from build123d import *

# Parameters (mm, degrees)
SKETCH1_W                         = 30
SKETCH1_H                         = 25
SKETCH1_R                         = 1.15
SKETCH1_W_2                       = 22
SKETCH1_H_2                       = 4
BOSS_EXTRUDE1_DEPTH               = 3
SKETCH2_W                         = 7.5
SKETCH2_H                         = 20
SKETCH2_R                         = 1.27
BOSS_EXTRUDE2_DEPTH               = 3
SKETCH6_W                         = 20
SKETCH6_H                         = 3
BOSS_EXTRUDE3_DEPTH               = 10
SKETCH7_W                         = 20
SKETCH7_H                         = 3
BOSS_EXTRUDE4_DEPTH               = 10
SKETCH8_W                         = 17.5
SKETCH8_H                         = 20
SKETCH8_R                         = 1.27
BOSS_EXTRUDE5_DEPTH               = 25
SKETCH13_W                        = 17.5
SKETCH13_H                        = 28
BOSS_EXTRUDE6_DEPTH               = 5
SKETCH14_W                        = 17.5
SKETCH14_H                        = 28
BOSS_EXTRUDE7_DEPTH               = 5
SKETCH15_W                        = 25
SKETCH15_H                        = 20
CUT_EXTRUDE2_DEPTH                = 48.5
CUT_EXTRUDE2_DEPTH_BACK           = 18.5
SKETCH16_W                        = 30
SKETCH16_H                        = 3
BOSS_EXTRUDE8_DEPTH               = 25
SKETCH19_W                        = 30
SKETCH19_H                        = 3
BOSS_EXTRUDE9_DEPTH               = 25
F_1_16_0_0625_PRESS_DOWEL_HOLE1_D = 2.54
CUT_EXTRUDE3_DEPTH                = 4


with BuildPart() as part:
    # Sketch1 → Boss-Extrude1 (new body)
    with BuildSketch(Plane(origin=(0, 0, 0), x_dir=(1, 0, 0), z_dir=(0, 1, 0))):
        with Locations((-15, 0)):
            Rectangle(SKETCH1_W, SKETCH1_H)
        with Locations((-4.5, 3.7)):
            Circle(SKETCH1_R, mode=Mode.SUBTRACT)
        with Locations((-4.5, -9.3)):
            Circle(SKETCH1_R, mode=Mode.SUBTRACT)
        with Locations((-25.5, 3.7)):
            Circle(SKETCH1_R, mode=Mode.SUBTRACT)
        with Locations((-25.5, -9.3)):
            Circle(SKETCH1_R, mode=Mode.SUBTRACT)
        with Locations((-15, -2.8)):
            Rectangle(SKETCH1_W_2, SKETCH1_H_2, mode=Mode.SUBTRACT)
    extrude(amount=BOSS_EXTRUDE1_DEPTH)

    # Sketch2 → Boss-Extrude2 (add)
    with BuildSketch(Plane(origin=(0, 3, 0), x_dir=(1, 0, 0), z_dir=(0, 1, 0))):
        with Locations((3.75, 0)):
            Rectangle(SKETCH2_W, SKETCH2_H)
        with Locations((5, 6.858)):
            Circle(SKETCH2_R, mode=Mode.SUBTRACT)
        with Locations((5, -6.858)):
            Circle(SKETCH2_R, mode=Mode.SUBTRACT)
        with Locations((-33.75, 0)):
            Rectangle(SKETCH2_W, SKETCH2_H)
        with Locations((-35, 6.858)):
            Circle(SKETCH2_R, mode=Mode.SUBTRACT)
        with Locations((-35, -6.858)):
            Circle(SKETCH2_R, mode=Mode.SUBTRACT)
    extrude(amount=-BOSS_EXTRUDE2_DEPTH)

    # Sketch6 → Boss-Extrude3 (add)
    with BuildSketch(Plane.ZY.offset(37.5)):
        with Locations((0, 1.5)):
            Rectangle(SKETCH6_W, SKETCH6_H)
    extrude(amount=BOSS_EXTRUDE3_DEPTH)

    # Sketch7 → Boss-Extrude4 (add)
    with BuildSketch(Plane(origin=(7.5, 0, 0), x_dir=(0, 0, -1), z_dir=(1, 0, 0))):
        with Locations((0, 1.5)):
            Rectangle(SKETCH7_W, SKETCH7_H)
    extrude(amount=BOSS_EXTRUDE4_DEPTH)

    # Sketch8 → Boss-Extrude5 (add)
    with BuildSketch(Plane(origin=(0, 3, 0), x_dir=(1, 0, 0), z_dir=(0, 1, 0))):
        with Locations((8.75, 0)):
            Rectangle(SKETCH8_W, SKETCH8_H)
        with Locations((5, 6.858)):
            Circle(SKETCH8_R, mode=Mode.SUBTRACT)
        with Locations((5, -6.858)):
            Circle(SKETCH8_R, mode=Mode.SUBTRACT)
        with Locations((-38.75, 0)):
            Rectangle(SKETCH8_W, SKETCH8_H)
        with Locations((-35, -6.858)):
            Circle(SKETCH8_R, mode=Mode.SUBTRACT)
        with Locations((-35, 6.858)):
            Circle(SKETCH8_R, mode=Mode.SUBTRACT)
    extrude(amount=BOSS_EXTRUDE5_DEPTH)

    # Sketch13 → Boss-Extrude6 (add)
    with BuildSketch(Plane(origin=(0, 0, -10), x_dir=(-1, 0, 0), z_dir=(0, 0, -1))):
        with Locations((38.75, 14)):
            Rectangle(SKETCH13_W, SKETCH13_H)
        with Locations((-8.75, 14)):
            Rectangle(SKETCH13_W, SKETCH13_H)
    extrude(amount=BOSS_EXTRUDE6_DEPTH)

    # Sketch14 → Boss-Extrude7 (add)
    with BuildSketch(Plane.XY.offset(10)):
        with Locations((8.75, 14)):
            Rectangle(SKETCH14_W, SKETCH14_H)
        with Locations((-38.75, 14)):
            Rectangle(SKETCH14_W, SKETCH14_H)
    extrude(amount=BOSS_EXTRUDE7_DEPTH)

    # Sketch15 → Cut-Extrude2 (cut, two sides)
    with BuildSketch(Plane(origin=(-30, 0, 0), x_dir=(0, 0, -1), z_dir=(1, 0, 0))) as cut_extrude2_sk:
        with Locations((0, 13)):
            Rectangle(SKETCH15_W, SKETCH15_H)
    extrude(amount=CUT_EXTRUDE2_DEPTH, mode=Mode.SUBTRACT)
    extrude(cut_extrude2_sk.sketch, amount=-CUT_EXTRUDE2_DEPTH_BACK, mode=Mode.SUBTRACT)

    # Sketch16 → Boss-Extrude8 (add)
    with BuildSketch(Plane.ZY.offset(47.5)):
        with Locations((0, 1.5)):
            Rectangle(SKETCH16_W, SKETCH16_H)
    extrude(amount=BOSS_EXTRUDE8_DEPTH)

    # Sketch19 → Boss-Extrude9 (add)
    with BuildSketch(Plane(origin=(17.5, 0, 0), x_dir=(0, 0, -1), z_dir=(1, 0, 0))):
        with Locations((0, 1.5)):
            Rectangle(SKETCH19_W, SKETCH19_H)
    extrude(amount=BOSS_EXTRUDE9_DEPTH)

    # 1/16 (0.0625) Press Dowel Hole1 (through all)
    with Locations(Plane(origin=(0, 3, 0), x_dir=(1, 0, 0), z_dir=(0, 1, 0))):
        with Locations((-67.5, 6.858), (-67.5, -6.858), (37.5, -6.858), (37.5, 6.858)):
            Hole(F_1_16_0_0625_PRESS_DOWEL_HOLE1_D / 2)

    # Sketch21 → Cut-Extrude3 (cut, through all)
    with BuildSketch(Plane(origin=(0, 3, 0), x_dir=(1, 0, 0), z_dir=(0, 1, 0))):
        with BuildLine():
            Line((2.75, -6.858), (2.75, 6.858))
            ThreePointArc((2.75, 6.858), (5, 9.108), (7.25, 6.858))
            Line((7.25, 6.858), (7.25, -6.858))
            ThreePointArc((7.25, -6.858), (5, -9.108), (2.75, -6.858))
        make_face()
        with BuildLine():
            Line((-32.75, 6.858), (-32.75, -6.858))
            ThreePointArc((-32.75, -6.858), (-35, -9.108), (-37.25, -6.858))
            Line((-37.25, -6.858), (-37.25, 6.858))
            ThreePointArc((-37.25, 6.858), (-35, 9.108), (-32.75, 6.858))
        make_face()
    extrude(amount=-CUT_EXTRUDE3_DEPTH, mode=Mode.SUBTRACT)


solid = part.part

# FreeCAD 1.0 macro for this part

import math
import FreeCAD as App
import Part
import Sketcher

V = App.Vector


def add_polygon(sketch, points):
    """Adds a closed chain of lines whose ends are joined by coincident constraints."""
    first, n = sketch.GeometryCount, len(points)
    for a, b in zip(points, points[1:] + points[:1]):
        sketch.addGeometry(Part.LineSegment(App.Vector(*a, 0), App.Vector(*b, 0)), False)
    for i in range(n):
        sketch.addConstraint(Sketcher.Constraint("Coincident", first + i, 2, first + (i + 1) % n, 1))

doc = App.newDocument("Part")
params = doc.addObject("Spreadsheet::Sheet", "Params")
for row, (alias, value) in enumerate([
    ("sketch1_diameter", "2.3 mm"),
    ("sketch1_width", "30 mm"),
    ("sketch1_width2", "22 mm"),
    ("sketch1_height", "25 mm"),
    ("sketch1_height2", "4 mm"),
    ("pad1_length", "3 mm"),
    ("sketch2_diameter", "2.54 mm"),
    ("sketch2_height", "20 mm"),
    ("sketch2_width", "7.5 mm"),
    ("pad2_length", "3 mm"),
    ("sketch3_width", "3 mm"),
    ("sketch3_height", "20 mm"),
    ("pad3_length", "10 mm"),
    ("sketch4_width", "3 mm"),
    ("sketch4_height", "20 mm"),
    ("pad4_length", "10 mm"),
    ("sketch5_diameter", "2.54 mm"),
    ("sketch5_height", "20 mm"),
    ("sketch5_width", "17.5 mm"),
    ("pad5_length", "25 mm"),
    ("sketch6_height", "28 mm"),
    ("sketch6_width", "17.5 mm"),
    ("pad6_length", "5 mm"),
    ("sketch7_height", "28 mm"),
    ("sketch7_width", "17.5 mm"),
    ("pad7_length", "5 mm"),
    ("sketch8_width", "20 mm"),
    ("sketch8_height", "25 mm"),
    ("sketch9_width", "3 mm"),
    ("sketch9_height", "30 mm"),
    ("pad8_length", "25 mm"),
    ("sketch10_width", "3 mm"),
    ("sketch10_height", "30 mm"),
    ("pad9_length", "25 mm"),
    ("sketch11_diameter", "2.54 mm"),
    ("hole_diameter", "2.54 mm"),
    ("sketch12_radius", "2.25 mm"),
], start=1):
    params.set(f"A{row}", alias)
    params.set(f"B{row}", "=" + value)
    params.setAlias(f"B{row}", alias)

body = doc.addObject("PartDesign::Body", "Body")

sketch1 = body.newObject("Sketcher::SketchObject", "Sketch")
sketch1.AttachmentSupport = (doc.getObject("XZ_Plane"), [""])
sketch1.MapMode = "FlatFace"
add_polygon(sketch1, [(-30, -12.5), (-30, 12.5), (0, 12.5), (0, -12.5)])
sketch1.addGeometry(Part.Circle(V(-25.5, 9.3, 0), V(0, 0, 1), 1.15), False)
sketch1.addGeometry(Part.Circle(V(-4.5, 9.3, 0), V(0, 0, 1), 1.15), False)
sketch1.addGeometry(Part.Circle(V(-25.5, -3.7, 0), V(0, 0, 1), 1.15), False)
add_polygon(sketch1, [(-4, 4.8), (-26, 4.8), (-26, 0.8), (-4, 0.8)])
sketch1.addGeometry(Part.Circle(V(-4.5, -3.7, 0), V(0, 0, 1), 1.15), False)
sketch1.addConstraint([
    Sketcher.Constraint("Vertical", 0),
    Sketcher.Constraint("Horizontal", 1),
    Sketcher.Constraint("Vertical", 2),
    Sketcher.Constraint("Horizontal", 3),
    Sketcher.Constraint("Horizontal", 7),
    Sketcher.Constraint("Vertical", 8),
    Sketcher.Constraint("Horizontal", 9),
    Sketcher.Constraint("Vertical", 10),
    Sketcher.Constraint("Equal", 4, 5),
    Sketcher.Constraint("Equal", 5, 6),
    Sketcher.Constraint("Equal", 6, 11),
    Sketcher.Constraint("Symmetric", 1, 2, 2, 2, -1, 1),
    Sketcher.Constraint("Horizontal", 4, 3, 5, 3),
    Sketcher.Constraint("Horizontal", 6, 3, 11, 3),
    Sketcher.Constraint("Vertical", 4, 3, 6, 3),
    Sketcher.Constraint("Vertical", 5, 3, 11, 3),
    Sketcher.Constraint("Diameter", 4, 2.3),
    Sketcher.Constraint("DistanceX", 1, 1, 1, 2, 30.0),
    Sketcher.Constraint("DistanceX", 7, 2, 7, 1, 22.0),
    Sketcher.Constraint("DistanceY", 0, 1, 0, 2, 25.0),
    Sketcher.Constraint("DistanceY", 8, 2, 8, 1, 4.0),
    Sketcher.Constraint("DistanceX", 7, 2, -1, 1, 26.0),
    Sketcher.Constraint("DistanceX", 4, 3, 5, 3, 21.0),
    Sketcher.Constraint("DistanceY", 6, 3, 4, 3, 13.0),
    Sketcher.Constraint("DistanceX", 4, 3, -1, 1, 25.5),
    Sketcher.Constraint("DistanceY", -1, 1, 4, 3, 9.3),
    Sketcher.Constraint("DistanceY", -1, 1, 7, 2, 4.8),
])
sketch1.setExpression("Constraints[24]", "Params.sketch1_diameter")
sketch1.setExpression("Constraints[25]", "Params.sketch1_width")
sketch1.setExpression("Constraints[26]", "Params.sketch1_width2")
sketch1.setExpression("Constraints[27]", "Params.sketch1_height")
sketch1.setExpression("Constraints[28]", "Params.sketch1_height2")
pad1 = body.newObject("PartDesign::Pad", "Pad")
pad1.Profile = sketch1
pad1.setExpression("Length", "Params.pad1_length")
pad1.Reversed = True

sketch2 = body.newObject("Sketcher::SketchObject", "Sketch001")
sketch2.AttachmentSupport = (doc.getObject("XZ_Plane"), [""])
sketch2.MapMode = "FlatFace"
sketch2.AttachmentOffset = App.Placement(V(0, 0, -3), App.Rotation())
add_polygon(sketch2, [(0, -10), (0, 10), (7.5, 10), (7.5, -10)])
sketch2.addGeometry(Part.Circle(V(5, 6.858, 0), V(0, 0, 1), 1.27), False)
sketch2.addGeometry(Part.Circle(V(5, -6.858, 0), V(0, 0, 1), 1.27), False)
add_polygon(sketch2, [(-37.5, -10), (-37.5, 10), (-30, 10), (-30, -10)])
sketch2.addGeometry(Part.Circle(V(-35, 6.858, 0), V(0, 0, 1), 1.27), False)
sketch2.addGeometry(Part.Circle(V(-35, -6.858, 0), V(0, 0, 1), 1.27), False)
sketch2.addConstraint([
    Sketcher.Constraint("Vertical", 0),
    Sketcher.Constraint("Horizontal", 1),
    Sketcher.Constraint("Vertical", 2),
    Sketcher.Constraint("Horizontal", 3),
    Sketcher.Constraint("Vertical", 6),
    Sketcher.Constraint("Horizontal", 7),
    Sketcher.Constraint("Vertical", 8),
    Sketcher.Constraint("Horizontal", 9),
    Sketcher.Constraint("Equal", 4, 5),
    Sketcher.Constraint("Equal", 5, 10),
    Sketcher.Constraint("Equal", 10, 11),
    Sketcher.Constraint("Symmetric", 0, 2, 3, 2, -1, 1),
    Sketcher.Constraint("Symmetric", 4, 3, 5, 3, -1),
    Sketcher.Constraint("Symmetric", 10, 3, 11, 3, -1),
    Sketcher.Constraint("Horizontal", 4, 3, 10, 3),
    Sketcher.Constraint("Horizontal", 1, 2, 6, 2),
    Sketcher.Constraint("Horizontal", 3, 2, 8, 2),
    Sketcher.Constraint("Equal", 3, 7),
    Sketcher.Constraint("Diameter", 4, 2.54),
    Sketcher.Constraint("DistanceY", 0, 1, 0, 2, 20.0),
    Sketcher.Constraint("DistanceX", 1, 1, 1, 2, 7.5),
    Sketcher.Constraint("DistanceX", -1, 1, 4, 3, 5.0),
    Sketcher.Constraint("DistanceX", 10, 3, -1, 1, 35.0),
    Sketcher.Constraint("DistanceX", 7, 2, -1, 1, 30.0),
    Sketcher.Constraint("DistanceY", -1, 1, 4, 3, 6.858),
])
sketch2.setExpression("Constraints[26]", "Params.sketch2_diameter")
sketch2.setExpression("Constraints[27]", "Params.sketch2_height")
sketch2.setExpression("Constraints[28]", "Params.sketch2_width")
pad2 = body.newObject("PartDesign::Pad", "Pad001")
pad2.Profile = sketch2
pad2.setExpression("Length", "Params.pad2_length")

sketch3 = body.newObject("Sketcher::SketchObject", "Sketch002")
sketch3.AttachmentSupport = (doc.getObject("YZ_Plane"), [""])
sketch3.MapMode = "FlatFace"
sketch3.AttachmentOffset = App.Placement(V(0, 0, -37.5), App.Rotation())
add_polygon(sketch3, [(3, -10), (0, -10), (0, 10), (3, 10)])
sketch3.addConstraint([
    Sketcher.Constraint("Horizontal", 0),
    Sketcher.Constraint("Vertical", 1),
    Sketcher.Constraint("Horizontal", 2),
    Sketcher.Constraint("Vertical", 3),
    Sketcher.Constraint("Symmetric", 0, 2, 1, 2, -1, 1),
    Sketcher.Constraint("DistanceX", 0, 2, 0, 1, 3.0),
    Sketcher.Constraint("DistanceY", 1, 1, 1, 2, 20.0),
])
sketch3.setExpression("Constraints[9]", "Params.sketch3_width")
sketch3.setExpression("Constraints[10]", "Params.sketch3_height")
pad3 = body.newObject("PartDesign::Pad", "Pad002")
pad3.Profile = sketch3
pad3.setExpression("Length", "Params.pad3_length")
pad3.Reversed = True

sketch4 = body.newObject("Sketcher::SketchObject", "Sketch003")
sketch4.AttachmentSupport = (doc.getObject("YZ_Plane"), [""])
sketch4.MapMode = "FlatFace"
sketch4.AttachmentOffset = App.Placement(V(0, 0, 7.5), App.Rotation())
add_polygon(sketch4, [(3, 10), (0, 10), (0, -10), (3, -10)])
sketch4.addConstraint([
    Sketcher.Constraint("Horizontal", 0),
    Sketcher.Constraint("Vertical", 1),
    Sketcher.Constraint("Horizontal", 2),
    Sketcher.Constraint("Vertical", 3),
    Sketcher.Constraint("Symmetric", 0, 2, 1, 2, -1, 1),
    Sketcher.Constraint("DistanceX", 0, 2, 0, 1, 3.0),
    Sketcher.Constraint("DistanceY", 1, 2, 1, 1, 20.0),
])
sketch4.setExpression("Constraints[9]", "Params.sketch4_width")
sketch4.setExpression("Constraints[10]", "Params.sketch4_height")
pad4 = body.newObject("PartDesign::Pad", "Pad003")
pad4.Profile = sketch4
pad4.setExpression("Length", "Params.pad4_length")

sketch5 = body.newObject("Sketcher::SketchObject", "Sketch004")
sketch5.AttachmentSupport = (doc.getObject("XZ_Plane"), [""])
sketch5.MapMode = "FlatFace"
sketch5.AttachmentOffset = App.Placement(V(0, 0, -3), App.Rotation())
add_polygon(sketch5, [(0, -10), (0, 10), (17.5, 10), (17.5, -10)])
sketch5.addGeometry(Part.Circle(V(5, 6.858, 0), V(0, 0, 1), 1.27), False)
sketch5.addGeometry(Part.Circle(V(5, -6.858, 0), V(0, 0, 1), 1.27), False)
add_polygon(sketch5, [(-47.5, -10), (-47.5, 10), (-30, 10), (-30, -10)])
sketch5.addGeometry(Part.Circle(V(-35, 6.858, 0), V(0, 0, 1), 1.27), False)
sketch5.addGeometry(Part.Circle(V(-35, -6.858, 0), V(0, 0, 1), 1.27), False)
sketch5.addConstraint([
    Sketcher.Constraint("Vertical", 0),
    Sketcher.Constraint("Horizontal", 1),
    Sketcher.Constraint("Vertical", 2),
    Sketcher.Constraint("Horizontal", 3),
    Sketcher.Constraint("Vertical", 6),
    Sketcher.Constraint("Horizontal", 7),
    Sketcher.Constraint("Vertical", 8),
    Sketcher.Constraint("Horizontal", 9),
    Sketcher.Constraint("Equal", 4, 5),
    Sketcher.Constraint("Equal", 5, 10),
    Sketcher.Constraint("Equal", 10, 11),
    Sketcher.Constraint("Symmetric", 0, 2, 3, 2, -1, 1),
    Sketcher.Constraint("Symmetric", 4, 3, 5, 3, -1),
    Sketcher.Constraint("Symmetric", 10, 3, 11, 3, -1),
    Sketcher.Constraint("Horizontal", 4, 3, 10, 3),
    Sketcher.Constraint("Horizontal", 1, 2, 6, 2),
    Sketcher.Constraint("Horizontal", 3, 2, 8, 2),
    Sketcher.Constraint("Equal", 3, 7),
    Sketcher.Constraint("Diameter", 4, 2.54),
    Sketcher.Constraint("DistanceY", 0, 1, 0, 2, 20.0),
    Sketcher.Constraint("DistanceX", 1, 1, 1, 2, 17.5),
    Sketcher.Constraint("DistanceX", -1, 1, 4, 3, 5.0),
    Sketcher.Constraint("DistanceX", 10, 3, -1, 1, 35.0),
    Sketcher.Constraint("DistanceX", 7, 2, -1, 1, 30.0),
    Sketcher.Constraint("DistanceY", -1, 1, 4, 3, 6.858),
])
sketch5.setExpression("Constraints[26]", "Params.sketch5_diameter")
sketch5.setExpression("Constraints[27]", "Params.sketch5_height")
sketch5.setExpression("Constraints[28]", "Params.sketch5_width")
pad5 = body.newObject("PartDesign::Pad", "Pad004")
pad5.Profile = sketch5
pad5.setExpression("Length", "Params.pad5_length")
pad5.Reversed = True

sketch6 = body.newObject("Sketcher::SketchObject", "Sketch005")
sketch6.AttachmentSupport = (doc.getObject("XY_Plane"), [""])
sketch6.MapMode = "FlatFace"
sketch6.AttachmentOffset = App.Placement(V(0, 0, -10), App.Rotation())
add_polygon(sketch6, [(-30, 28), (-30, 0), (-47.5, 0), (-47.5, 28)])
add_polygon(sketch6, [(17.5, 28), (17.5, 0), (0, 0), (0, 28)])
sketch6.addConstraint([
    Sketcher.Constraint("Vertical", 0),
    Sketcher.Constraint("Horizontal", 1),
    Sketcher.Constraint("Vertical", 2),
    Sketcher.Constraint("Horizontal", 3),
    Sketcher.Constraint("Vertical", 4),
    Sketcher.Constraint("Horizontal", 5),
    Sketcher.Constraint("Vertical", 6),
    Sketcher.Constraint("Horizontal", 7),
    Sketcher.Constraint("Coincident", 5, 2, -1, 1),
    Sketcher.Constraint("PointOnObject", 0, 2, -1),
    Sketcher.Constraint("Horizontal", 3, 2, 6, 2),
    Sketcher.Constraint("Equal", 3, 5),
    Sketcher.Constraint("DistanceY", 0, 2, 0, 1, 28.0),
    Sketcher.Constraint("DistanceX", 1, 2, 1, 1, 17.5),
    Sketcher.Constraint("DistanceX", 0, 2, -1, 1, 30.0),
])
sketch6.setExpression("Constraints[20]", "Params.sketch6_height")
sketch6.setExpression("Constraints[21]", "Params.sketch6_width")
pad6 = body.newObject("PartDesign::Pad", "Pad005")
pad6.Profile = sketch6
pad6.setExpression("Length", "Params.pad6_length")
pad6.Reversed = True

sketch7 = body.newObject("Sketcher::SketchObject", "Sketch006")
sketch7.AttachmentSupport = (doc.getObject("XY_Plane"), [""])
sketch7.MapMode = "FlatFace"
sketch7.AttachmentOffset = App.Placement(V(0, 0, 10), App.Rotation())
add_polygon(sketch7, [(0, 28), (0, 0), (17.5, 0), (17.5, 28)])
add_polygon(sketch7, [(-47.5, 28), (-47.5, 0), (-30, 0), (-30, 28)])
sketch7.addConstraint([
    Sketcher.Constraint("Vertical", 0),
    Sketcher.Constraint("Horizontal", 1),
    Sketcher.Constraint("Vertical", 2),
    Sketcher.Constraint("Horizontal", 3),
    Sketcher.Constraint("Vertical", 4),
    Sketcher.Constraint("Horizontal", 5),
    Sketcher.Constraint("Vertical", 6),
    Sketcher.Constraint("Horizontal", 7),
    Sketcher.Constraint("Coincident", 0, 2, -1, 1),
    Sketcher.Constraint("PointOnObject", 4, 2, -1),
    Sketcher.Constraint("Horizontal", 3, 2, 6, 2),
    Sketcher.Constraint("Equal", 3, 5),
    Sketcher.Constraint("DistanceY", 0, 2, 0, 1, 28.0),
    Sketcher.Constraint("DistanceX", 1, 1, 1, 2, 17.5),
    Sketcher.Constraint("DistanceX", 5, 2, -1, 1, 30.0),
])
sketch7.setExpression("Constraints[20]", "Params.sketch7_height")
sketch7.setExpression("Constraints[21]", "Params.sketch7_width")
pad7 = body.newObject("PartDesign::Pad", "Pad006")
pad7.Profile = sketch7
pad7.setExpression("Length", "Params.pad7_length")

sketch8 = body.newObject("Sketcher::SketchObject", "Sketch007")
sketch8.AttachmentSupport = (doc.getObject("YZ_Plane"), [""])
sketch8.MapMode = "FlatFace"
sketch8.AttachmentOffset = App.Placement(V(0, 0, -30), App.Rotation())
add_polygon(sketch8, [(23, 12.5), (3, 12.5), (3, -12.5), (23, -12.5)])
sketch8.addConstraint([
    Sketcher.Constraint("Horizontal", 0),
    Sketcher.Constraint("Vertical", 1),
    Sketcher.Constraint("Horizontal", 2),
    Sketcher.Constraint("Vertical", 3),
    Sketcher.Constraint("DistanceX", 0, 2, 0, 1, 20.0),
    Sketcher.Constraint("DistanceY", 1, 2, 1, 1, 25.0),
    Sketcher.Constraint("DistanceX", -1, 1, 0, 2, 3.0),
    Sketcher.Constraint("DistanceY", -1, 1, 0, 2, 12.5),
])
sketch8.setExpression("Constraints[8]", "Params.sketch8_width")
sketch8.setExpression("Constraints[9]", "Params.sketch8_height")
pocket1 = body.newObject("PartDesign::Pocket", "Pocket")
pocket1.Profile = sketch8
pocket1.Type = "ThroughAll"
pocket1.Midplane = True

sketch9 = body.newObject("Sketcher::SketchObject", "Sketch008")
sketch9.AttachmentSupport = (doc.getObject("YZ_Plane"), [""])
sketch9.MapMode = "FlatFace"
sketch9.AttachmentOffset = App.Placement(V(0, 0, -47.5), App.Rotation())
add_polygon(sketch9, [(3, -15), (0, -15), (0, 15), (3, 15)])
sketch9.addConstraint([
    Sketcher.Constraint("Horizontal", 0),
    Sketcher.Constraint("Vertical", 1),
    Sketcher.Constraint("Horizontal", 2),
    Sketcher.Constraint("Vertical", 3),
    Sketcher.Constraint("Symmetric", 0, 2, 1, 2, -1, 1),
    Sketcher.Constraint("DistanceX", 0, 2, 0, 1, 3.0),
    Sketcher.Constraint("DistanceY", 1, 1, 1, 2, 30.0),
])
sketch9.setExpression("Constraints[9]", "Params.sketch9_width")
sketch9.setExpression("Constraints[10]", "Params.sketch9_height")
pad8 = body.newObject("PartDesign::Pad", "Pad007")
pad8.Profile = sketch9
pad8.setExpression("Length", "Params.pad8_length")
pad8.Reversed = True

sketch10 = body.newObject("Sketcher::SketchObject", "Sketch009")
sketch10.AttachmentSupport = (doc.getObject("YZ_Plane"), [""])
sketch10.MapMode = "FlatFace"
sketch10.AttachmentOffset = App.Placement(V(0, 0, 17.5), App.Rotation())
add_polygon(sketch10, [(3, 15), (0, 15), (0, -15), (3, -15)])
sketch10.addConstraint([
    Sketcher.Constraint("Horizontal", 0),
    Sketcher.Constraint("Vertical", 1),
    Sketcher.Constraint("Horizontal", 2),
    Sketcher.Constraint("Vertical", 3),
    Sketcher.Constraint("Symmetric", 0, 2, 1, 2, -1, 1),
    Sketcher.Constraint("DistanceX", 0, 2, 0, 1, 3.0),
    Sketcher.Constraint("DistanceY", 1, 2, 1, 1, 30.0),
])
sketch10.setExpression("Constraints[9]", "Params.sketch10_width")
sketch10.setExpression("Constraints[10]", "Params.sketch10_height")
pad9 = body.newObject("PartDesign::Pad", "Pad008")
pad9.Profile = sketch10
pad9.setExpression("Length", "Params.pad9_length")

sketch11 = body.newObject("Sketcher::SketchObject", "Sketch010")
sketch11.AttachmentSupport = (doc.getObject("XZ_Plane"), [""])
sketch11.MapMode = "FlatFace"
sketch11.AttachmentOffset = App.Placement(V(0, 0, -3), App.Rotation())
sketch11.addGeometry([
    Part.Circle(V(-67.5, -6.858, 0), V(0, 0, 1), 1.27),
    Part.Circle(V(-67.5, 6.858, 0), V(0, 0, 1), 1.27),
    Part.Circle(V(37.5, 6.858, 0), V(0, 0, 1), 1.27),
    Part.Circle(V(37.5, -6.858, 0), V(0, 0, 1), 1.27),
], False)
sketch11.addConstraint([
    Sketcher.Constraint("Equal", 0, 1),
    Sketcher.Constraint("Equal", 1, 2),
    Sketcher.Constraint("Equal", 2, 3),
    Sketcher.Constraint("Symmetric", 0, 3, 1, 3, -1),
    Sketcher.Constraint("Symmetric", 2, 3, 3, 3, -1),
    Sketcher.Constraint("Horizontal", 1, 3, 2, 3),
    Sketcher.Constraint("Diameter", 0, 2.54),
    Sketcher.Constraint("DistanceX", 1, 3, 2, 3, 105.0),
    Sketcher.Constraint("DistanceX", 0, 3, -1, 1, 67.5),
    Sketcher.Constraint("DistanceY", 0, 3, -1, 1, 6.858),
])
sketch11.setExpression("Constraints[6]", "Params.sketch11_diameter")
doc.recompute()
hole = body.newObject("PartDesign::Hole", "Hole")
hole.Profile = sketch11
hole.ThreadType = "None"
hole.setExpression("Diameter", "Params.hole_diameter")
hole.DepthType = "ThroughAll"
hole.Reversed = True

sketch12 = body.newObject("Sketcher::SketchObject", "Sketch011")
sketch12.AttachmentSupport = (doc.getObject("XZ_Plane"), [""])
sketch12.MapMode = "FlatFace"
sketch12.AttachmentOffset = App.Placement(V(0, 0, -3), App.Rotation())
sketch12.addGeometry([
    Part.LineSegment(V(2.75, -6.858, 0), V(2.75, 6.858, 0)),
    Part.ArcOfCircle(Part.Circle(V(5, 6.858, 0), V(0, 0, 1), 2.25), math.radians(0), math.radians(180)),
    Part.LineSegment(V(7.25, 6.858, 0), V(7.25, -6.858, 0)),
    Part.ArcOfCircle(Part.Circle(V(5, -6.858, 0), V(0, 0, 1), 2.25), math.radians(180), math.radians(360)),
    Part.LineSegment(V(-32.75, 6.858, 0), V(-32.75, -6.858, 0)),
    Part.ArcOfCircle(Part.Circle(V(-35, -6.858, 0), V(0, 0, 1), 2.25), math.radians(180), math.radians(360)),
    Part.LineSegment(V(-37.25, -6.858, 0), V(-37.25, 6.858, 0)),
    Part.ArcOfCircle(Part.Circle(V(-35, 6.858, 0), V(0, 0, 1), 2.25), math.radians(0), math.radians(180)),
], False)
sketch12.addConstraint([
    Sketcher.Constraint("Tangent", 0, 2, 1, 2),
    Sketcher.Constraint("Tangent", 1, 1, 2, 1),
    Sketcher.Constraint("Tangent", 2, 2, 3, 2),
    Sketcher.Constraint("Tangent", 3, 1, 0, 1),
    Sketcher.Constraint("Tangent", 4, 2, 5, 2),
    Sketcher.Constraint("Tangent", 5, 1, 6, 1),
    Sketcher.Constraint("Tangent", 6, 2, 7, 2),
    Sketcher.Constraint("Tangent", 7, 1, 4, 1),
    Sketcher.Constraint("Vertical", 0),
    Sketcher.Constraint("Vertical", 2),
    Sketcher.Constraint("Vertical", 4),
    Sketcher.Constraint("Vertical", 6),
    Sketcher.Constraint("Equal", 3, 5),
    Sketcher.Constraint("Horizontal", 3, 3, 5, 3),
    Sketcher.Constraint("Horizontal", 1, 3, 7, 3),
    Sketcher.Constraint("Radius", 1, 2.25),
    Sketcher.Constraint("DistanceX", -1, 1, 1, 3, 5.0),
    Sketcher.Constraint("DistanceX", 5, 3, -1, 1, 35.0),
    Sketcher.Constraint("DistanceY", 0, 1, 0, 2, 13.716),
    Sketcher.Constraint("DistanceY", -1, 1, 1, 3, 6.858),
])
sketch12.setExpression("Constraints[15]", "Params.sketch12_radius")
pocket2 = body.newObject("PartDesign::Pocket", "Pocket001")
pocket2.Profile = sketch12
pocket2.Type = "ThroughAll"
pocket2.Reversed = True

doc.recompute()
